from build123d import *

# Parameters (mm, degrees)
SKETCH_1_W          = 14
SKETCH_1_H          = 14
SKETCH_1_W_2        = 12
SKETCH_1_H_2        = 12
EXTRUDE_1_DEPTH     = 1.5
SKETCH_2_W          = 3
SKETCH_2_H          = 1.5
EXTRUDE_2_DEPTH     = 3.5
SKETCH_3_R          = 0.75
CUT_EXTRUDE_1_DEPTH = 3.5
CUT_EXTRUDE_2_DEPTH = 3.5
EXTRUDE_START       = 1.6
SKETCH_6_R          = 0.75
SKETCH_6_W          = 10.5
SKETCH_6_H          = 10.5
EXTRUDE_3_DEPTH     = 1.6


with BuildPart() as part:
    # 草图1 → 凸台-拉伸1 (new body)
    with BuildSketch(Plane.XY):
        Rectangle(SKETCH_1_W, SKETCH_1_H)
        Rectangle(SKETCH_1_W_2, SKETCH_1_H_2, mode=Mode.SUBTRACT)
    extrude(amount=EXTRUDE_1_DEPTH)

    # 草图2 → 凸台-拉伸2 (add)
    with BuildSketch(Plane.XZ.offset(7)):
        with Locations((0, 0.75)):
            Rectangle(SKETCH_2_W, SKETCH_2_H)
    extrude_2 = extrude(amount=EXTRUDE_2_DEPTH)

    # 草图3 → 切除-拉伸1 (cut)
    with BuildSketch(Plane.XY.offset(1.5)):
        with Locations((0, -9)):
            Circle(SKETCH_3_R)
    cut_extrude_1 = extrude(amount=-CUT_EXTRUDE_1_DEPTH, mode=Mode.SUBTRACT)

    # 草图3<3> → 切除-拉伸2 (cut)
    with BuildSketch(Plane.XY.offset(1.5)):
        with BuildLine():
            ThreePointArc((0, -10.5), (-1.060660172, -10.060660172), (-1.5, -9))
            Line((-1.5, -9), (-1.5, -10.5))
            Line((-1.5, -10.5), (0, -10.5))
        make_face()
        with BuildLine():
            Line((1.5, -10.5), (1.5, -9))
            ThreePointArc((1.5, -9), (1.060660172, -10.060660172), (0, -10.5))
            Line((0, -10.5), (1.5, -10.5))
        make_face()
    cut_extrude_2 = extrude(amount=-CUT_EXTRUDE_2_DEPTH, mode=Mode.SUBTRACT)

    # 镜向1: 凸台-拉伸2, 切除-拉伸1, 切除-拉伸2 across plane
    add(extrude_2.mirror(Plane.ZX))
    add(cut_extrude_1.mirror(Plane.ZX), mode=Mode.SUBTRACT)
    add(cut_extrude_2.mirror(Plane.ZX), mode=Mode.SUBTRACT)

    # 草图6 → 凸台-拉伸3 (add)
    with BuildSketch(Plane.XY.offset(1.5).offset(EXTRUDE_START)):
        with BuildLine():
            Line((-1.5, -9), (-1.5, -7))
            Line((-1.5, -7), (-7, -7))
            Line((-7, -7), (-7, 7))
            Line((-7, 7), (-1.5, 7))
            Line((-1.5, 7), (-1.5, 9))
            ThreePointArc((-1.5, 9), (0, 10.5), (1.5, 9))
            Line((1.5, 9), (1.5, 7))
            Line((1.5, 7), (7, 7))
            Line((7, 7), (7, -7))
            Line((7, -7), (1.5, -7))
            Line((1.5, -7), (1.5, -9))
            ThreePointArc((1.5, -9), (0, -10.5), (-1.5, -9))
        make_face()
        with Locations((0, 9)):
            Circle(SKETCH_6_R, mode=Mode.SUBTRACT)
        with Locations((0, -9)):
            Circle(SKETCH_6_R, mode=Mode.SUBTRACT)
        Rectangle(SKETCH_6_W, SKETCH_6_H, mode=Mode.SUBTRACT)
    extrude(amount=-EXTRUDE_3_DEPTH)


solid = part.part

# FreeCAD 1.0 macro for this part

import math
import FreeCAD as App
import Part
import Sketcher
from FreeCAD import Vector
Q = App.Units.Quantity


def add_polygon(sketch, points):
    """Adds a closed chain of lines whose ends are joined by coincident constraints."""
    first, n = sketch.GeometryCount, len(points)
    for a, b in zip(points, points[1:] + points[:1]):
        sketch.addGeometry(Part.LineSegment(App.Vector(*a, 0), App.Vector(*b, 0)), False)
    for i in range(n):
        sketch.addConstraint(Sketcher.Constraint("Coincident", first + i, 2, first + (i + 1) % n, 1))

doc = App.newDocument("Part")
body = doc.addObject("PartDesign::Body", "Body")

sketch1 = body.newObject("Sketcher::SketchObject", "Sketch")
sketch1.AttachmentSupport = (doc.getObject("XY_Plane"), [""])
sketch1.MapMode = "FlatFace"
add_polygon(sketch1, [(-7, 7), (-7, -7), (7, -7), (7, 7)])
add_polygon(sketch1, [(6, -6), (-6, -6), (-6, 6), (6, 6)])
sketch1.addConstraint([
    Sketcher.Constraint("Vertical", 0),
    Sketcher.Constraint("Horizontal", 1),
    Sketcher.Constraint("Vertical", 2),
    Sketcher.Constraint("Horizontal", 3),
    Sketcher.Constraint("Horizontal", 4),
    Sketcher.Constraint("Vertical", 5),
    Sketcher.Constraint("Horizontal", 6),
    Sketcher.Constraint("Vertical", 7),
    Sketcher.Constraint("Symmetric", 0, 2, 2, 2, -1, 1),
    Sketcher.Constraint("Symmetric", 4, 2, 6, 2, -1, 1),
    Sketcher.Constraint("Equal", 3, 0),
    Sketcher.Constraint("Equal", 6, 5),
    Sketcher.Constraint("DistanceX", 1, 1, 1, 2, Q("14 mm")),
    Sketcher.Constraint("DistanceX", 4, 2, 4, 1, Q("12 mm")),
])
pad1 = body.newObject("PartDesign::Pad", "Pad")
pad1.Profile = sketch1
pad1.Length = 1.5

sketch2 = body.newObject("Sketcher::SketchObject", "Sketch001")
sketch2.AttachmentSupport = (doc.getObject("XZ_Plane"), [""])
sketch2.MapMode = "FlatFace"
sketch2.AttachmentOffset = App.Placement(Vector(0, 0, 7), App.Rotation())
add_polygon(sketch2, [(-1.5, 1.5), (-1.5, 0), (1.5, 0), (1.5, 1.5)])
sketch2.addConstraint([
    Sketcher.Constraint("Vertical", 0),
    Sketcher.Constraint("Horizontal", 1),
    Sketcher.Constraint("Vertical", 2),
    Sketcher.Constraint("Horizontal", 3),
    Sketcher.Constraint("Symmetric", 0, 2, 1, 2, -1, 1),
    Sketcher.Constraint("DistanceX", 1, 1, 1, 2, Q("3 mm")),
    Sketcher.Constraint("DistanceY", 0, 2, 0, 1, Q("1.5 mm")),
])
pad2 = body.newObject("PartDesign::Pad", "Pad001")
pad2.Profile = sketch2
pad2.Length = 3.5

sketch3 = body.newObject("Sketcher::SketchObject", "Sketch002")
sketch3.AttachmentSupport = (doc.getObject("XY_Plane"), [""])
sketch3.MapMode = "FlatFace"
sketch3.AttachmentOffset = App.Placement(Vector(0, 0, 1.5), App.Rotation())
sketch3.addGeometry(Part.Circle(Vector(0, -9, 0), Vector(0, 0, 1), 0.75), False)
sketch3.addConstraint([
    Sketcher.Constraint("PointOnObject", 0, 3, -2),
    Sketcher.Constraint("Diameter", 0, Q("1.5 mm")),
    Sketcher.Constraint("DistanceY", 0, 3, -1, 1, Q("9 mm")),
])
pocket1 = body.newObject("PartDesign::Pocket", "Pocket")
pocket1.Profile = sketch3
pocket1.Length = 3.5

sketch4 = body.newObject("Sketcher::SketchObject", "Sketch003")
sketch4.AttachmentSupport = (doc.getObject("XY_Plane"), [""])
sketch4.MapMode = "FlatFace"
sketch4.AttachmentOffset = App.Placement(Vector(0, 0, 1.5), App.Rotation())
sketch4.addGeometry([
    Part.ArcOfCircle(Part.Circle(Vector(0, -9, 0), Vector(0, 0, 1), 1.5), math.radians(180), math.radians(270)),
    Part.LineSegment(Vector(-1.5, -9, 0), Vector(-1.5, -10.5, 0)),
    Part.LineSegment(Vector(-1.5, -10.5, 0), Vector(0, -10.5, 0)),
    Part.LineSegment(Vector(1.5, -10.5, 0), Vector(1.5, -9, 0)),
    Part.ArcOfCircle(Part.Circle(Vector(0, -9, 0), Vector(0, 0, 1), 1.5), math.radians(-90), math.radians(0)),
    Part.LineSegment(Vector(0, -10.5, 0), Vector(1.5, -10.5, 0)),
], False)
sketch4.addConstraint([
    Sketcher.Constraint("Tangent", 0, 1, 1, 1),
    Sketcher.Constraint("Coincident", 1, 2, 2, 1),
    Sketcher.Constraint("Tangent", 2, 2, 0, 2),
    Sketcher.Constraint("Tangent", 3, 2, 4, 2),
    Sketcher.Constraint("Tangent", 4, 1, 5, 1),
    Sketcher.Constraint("Coincident", 5, 2, 3, 1),
    Sketcher.Constraint("Vertical", 1),
    Sketcher.Constraint("Horizontal", 2),
    Sketcher.Constraint("Vertical", 3),
    Sketcher.Constraint("Horizontal", 5),
    Sketcher.Constraint("Coincident", 4, 3, 0, 3),
    Sketcher.Constraint("Equal", 0, 4),
    Sketcher.Constraint("PointOnObject", 0, 3, -2),
    Sketcher.Constraint("Radius", 0, Q("1.5 mm")),
    Sketcher.Constraint("DistanceY", 0, 3, -1, 1, Q("9 mm")),
])
pocket2 = body.newObject("PartDesign::Pocket", "Pocket001")
pocket2.Profile = sketch4
pocket2.Length = 3.5
doc.recompute()

mirrored = body.newObject("PartDesign::Mirrored", "Mirrored")
mirrored.Originals = [pad2, pocket1, pocket2]
mirrored.MirrorPlane = (doc.getObject("XZ_Plane"), [""])
body.Tip = mirrored

sketch5 = body.newObject("Sketcher::SketchObject", "Sketch004")
sketch5.AttachmentSupport = (doc.getObject("XY_Plane"), [""])
sketch5.MapMode = "FlatFace"
sketch5.AttachmentOffset = App.Placement(Vector(0, 0, 3.1), App.Rotation())
sketch5.addGeometry(Part.LineSegment(Vector(-1.5, -7, 0), Vector(-1.5, -9, 0)), False)
sketch5.addGeometry(Part.ArcOfCircle(Part.Circle(Vector(0, -9, 0), Vector(0, 0, 1), 1.5), math.radians(180), math.radians(360)), False)
sketch5.addGeometry(Part.LineSegment(Vector(1.5, -9, 0), Vector(1.5, -7, 0)), False)
sketch5.addGeometry(Part.LineSegment(Vector(1.5, -7, 0), Vector(7, -7, 0)), False)
sketch5.addGeometry(Part.LineSegment(Vector(7, -7, 0), Vector(7, 7, 0)), False)
sketch5.addGeometry(Part.LineSegment(Vector(7, 7, 0), Vector(1.5, 7, 0)), False)
sketch5.addGeometry(Part.LineSegment(Vector(1.5, 7, 0), Vector(1.5, 9, 0)), False)
sketch5.addGeometry(Part.ArcOfCircle(Part.Circle(Vector(0, 9, 0), Vector(0, 0, 1), 1.5), math.radians(0), math.radians(180)), False)
sketch5.addGeometry(Part.LineSegment(Vector(-1.5, 9, 0), Vector(-1.5, 7, 0)), False)
sketch5.addGeometry(Part.LineSegment(Vector(-1.5, 7, 0), Vector(-7, 7, 0)), False)
sketch5.addGeometry(Part.LineSegment(Vector(-7, 7, 0), Vector(-7, -7, 0)), False)
sketch5.addGeometry(Part.LineSegment(Vector(-7, -7, 0), Vector(-1.5, -7, 0)), False)
sketch5.addGeometry(Part.Circle(Vector(0, -9, 0), Vector(0, 0, 1), 0.75), False)
add_polygon(sketch5, [(-5.25, -5.25), (-5.25, 5.25), (5.25, 5.25), (5.25, -5.25)])
sketch5.addGeometry(Part.Circle(Vector(0, 9, 0), Vector(0, 0, 1), 0.75), False)
sketch5.addConstraint([
    Sketcher.Constraint("Tangent", 0, 2, 1, 1),
    Sketcher.Constraint("Tangent", 1, 2, 2, 1),
    Sketcher.Constraint("Coincident", 2, 2, 3, 1),
    Sketcher.Constraint("Coincident", 3, 2, 4, 1),
    Sketcher.Constraint("Coincident", 4, 2, 5, 1),
    Sketcher.Constraint("Coincident", 5, 2, 6, 1),
    Sketcher.Constraint("Tangent", 6, 2, 7, 1),
    Sketcher.Constraint("Tangent", 7, 2, 8, 1),
    Sketcher.Constraint("Coincident", 8, 2, 9, 1),
    Sketcher.Constraint("Coincident", 9, 2, 10, 1),
    Sketcher.Constraint("Coincident", 10, 2, 11, 1),
    Sketcher.Constraint("Coincident", 11, 2, 0, 1),
    Sketcher.Constraint("Vertical", 0),
    Sketcher.Constraint("Vertical", 2),
    Sketcher.Constraint("Horizontal", 3),
    Sketcher.Constraint("Vertical", 4),
    Sketcher.Constraint("Horizontal", 5),
    Sketcher.Constraint("Vertical", 6),
    Sketcher.Constraint("Vertical", 8),
    Sketcher.Constraint("Horizontal", 9),
    Sketcher.Constraint("Vertical", 10),
    Sketcher.Constraint("Horizontal", 11),
    Sketcher.Constraint("Vertical", 13),
    Sketcher.Constraint("Horizontal", 14),
    Sketcher.Constraint("Vertical", 15),
    Sketcher.Constraint("Horizontal", 16),
    Sketcher.Constraint("Coincident", 12, 3, 1, 3),
    Sketcher.Constraint("Coincident", 17, 3, 7, 3),
    Sketcher.Constraint("Equal", 1, 7),
    Sketcher.Constraint("Equal", 12, 17),
    Sketcher.Constraint("Symmetric", 1, 3, 7, 3, -1, 1),
    Sketcher.Constraint("Symmetric", 3, 2, 9, 2, -1, 1),
    Sketcher.Constraint("Symmetric", 13, 2, 15, 2, -1, 1),
    Sketcher.Constraint("Symmetric", 5, 2, 8, 2, -2),
    Sketcher.Constraint("Horizontal", 3, 2, 10, 2),
    Sketcher.Constraint("Equal", 16, 13),
    Sketcher.Constraint("Diameter", 12, Q("1.5 mm")),
    Sketcher.Constraint("Radius", 1, Q("1.5 mm")),
    Sketcher.Constraint("DistanceY", 0, 2, 0, 1, Q("2 mm")),
    Sketcher.Constraint("DistanceY", 4, 1, 4, 2, Q("14 mm")),
    Sketcher.Constraint("DistanceX", 3, 1, 3, 2, Q("5.5 mm")),
    Sketcher.Constraint("DistanceX", 14, 1, 14, 2, Q("10.5 mm")),
])
pad3 = body.newObject("PartDesign::Pad", "Pad002")
pad3.Profile = sketch5
pad3.Length = 1.6
pad3.Reversed = True

doc.recompute()
